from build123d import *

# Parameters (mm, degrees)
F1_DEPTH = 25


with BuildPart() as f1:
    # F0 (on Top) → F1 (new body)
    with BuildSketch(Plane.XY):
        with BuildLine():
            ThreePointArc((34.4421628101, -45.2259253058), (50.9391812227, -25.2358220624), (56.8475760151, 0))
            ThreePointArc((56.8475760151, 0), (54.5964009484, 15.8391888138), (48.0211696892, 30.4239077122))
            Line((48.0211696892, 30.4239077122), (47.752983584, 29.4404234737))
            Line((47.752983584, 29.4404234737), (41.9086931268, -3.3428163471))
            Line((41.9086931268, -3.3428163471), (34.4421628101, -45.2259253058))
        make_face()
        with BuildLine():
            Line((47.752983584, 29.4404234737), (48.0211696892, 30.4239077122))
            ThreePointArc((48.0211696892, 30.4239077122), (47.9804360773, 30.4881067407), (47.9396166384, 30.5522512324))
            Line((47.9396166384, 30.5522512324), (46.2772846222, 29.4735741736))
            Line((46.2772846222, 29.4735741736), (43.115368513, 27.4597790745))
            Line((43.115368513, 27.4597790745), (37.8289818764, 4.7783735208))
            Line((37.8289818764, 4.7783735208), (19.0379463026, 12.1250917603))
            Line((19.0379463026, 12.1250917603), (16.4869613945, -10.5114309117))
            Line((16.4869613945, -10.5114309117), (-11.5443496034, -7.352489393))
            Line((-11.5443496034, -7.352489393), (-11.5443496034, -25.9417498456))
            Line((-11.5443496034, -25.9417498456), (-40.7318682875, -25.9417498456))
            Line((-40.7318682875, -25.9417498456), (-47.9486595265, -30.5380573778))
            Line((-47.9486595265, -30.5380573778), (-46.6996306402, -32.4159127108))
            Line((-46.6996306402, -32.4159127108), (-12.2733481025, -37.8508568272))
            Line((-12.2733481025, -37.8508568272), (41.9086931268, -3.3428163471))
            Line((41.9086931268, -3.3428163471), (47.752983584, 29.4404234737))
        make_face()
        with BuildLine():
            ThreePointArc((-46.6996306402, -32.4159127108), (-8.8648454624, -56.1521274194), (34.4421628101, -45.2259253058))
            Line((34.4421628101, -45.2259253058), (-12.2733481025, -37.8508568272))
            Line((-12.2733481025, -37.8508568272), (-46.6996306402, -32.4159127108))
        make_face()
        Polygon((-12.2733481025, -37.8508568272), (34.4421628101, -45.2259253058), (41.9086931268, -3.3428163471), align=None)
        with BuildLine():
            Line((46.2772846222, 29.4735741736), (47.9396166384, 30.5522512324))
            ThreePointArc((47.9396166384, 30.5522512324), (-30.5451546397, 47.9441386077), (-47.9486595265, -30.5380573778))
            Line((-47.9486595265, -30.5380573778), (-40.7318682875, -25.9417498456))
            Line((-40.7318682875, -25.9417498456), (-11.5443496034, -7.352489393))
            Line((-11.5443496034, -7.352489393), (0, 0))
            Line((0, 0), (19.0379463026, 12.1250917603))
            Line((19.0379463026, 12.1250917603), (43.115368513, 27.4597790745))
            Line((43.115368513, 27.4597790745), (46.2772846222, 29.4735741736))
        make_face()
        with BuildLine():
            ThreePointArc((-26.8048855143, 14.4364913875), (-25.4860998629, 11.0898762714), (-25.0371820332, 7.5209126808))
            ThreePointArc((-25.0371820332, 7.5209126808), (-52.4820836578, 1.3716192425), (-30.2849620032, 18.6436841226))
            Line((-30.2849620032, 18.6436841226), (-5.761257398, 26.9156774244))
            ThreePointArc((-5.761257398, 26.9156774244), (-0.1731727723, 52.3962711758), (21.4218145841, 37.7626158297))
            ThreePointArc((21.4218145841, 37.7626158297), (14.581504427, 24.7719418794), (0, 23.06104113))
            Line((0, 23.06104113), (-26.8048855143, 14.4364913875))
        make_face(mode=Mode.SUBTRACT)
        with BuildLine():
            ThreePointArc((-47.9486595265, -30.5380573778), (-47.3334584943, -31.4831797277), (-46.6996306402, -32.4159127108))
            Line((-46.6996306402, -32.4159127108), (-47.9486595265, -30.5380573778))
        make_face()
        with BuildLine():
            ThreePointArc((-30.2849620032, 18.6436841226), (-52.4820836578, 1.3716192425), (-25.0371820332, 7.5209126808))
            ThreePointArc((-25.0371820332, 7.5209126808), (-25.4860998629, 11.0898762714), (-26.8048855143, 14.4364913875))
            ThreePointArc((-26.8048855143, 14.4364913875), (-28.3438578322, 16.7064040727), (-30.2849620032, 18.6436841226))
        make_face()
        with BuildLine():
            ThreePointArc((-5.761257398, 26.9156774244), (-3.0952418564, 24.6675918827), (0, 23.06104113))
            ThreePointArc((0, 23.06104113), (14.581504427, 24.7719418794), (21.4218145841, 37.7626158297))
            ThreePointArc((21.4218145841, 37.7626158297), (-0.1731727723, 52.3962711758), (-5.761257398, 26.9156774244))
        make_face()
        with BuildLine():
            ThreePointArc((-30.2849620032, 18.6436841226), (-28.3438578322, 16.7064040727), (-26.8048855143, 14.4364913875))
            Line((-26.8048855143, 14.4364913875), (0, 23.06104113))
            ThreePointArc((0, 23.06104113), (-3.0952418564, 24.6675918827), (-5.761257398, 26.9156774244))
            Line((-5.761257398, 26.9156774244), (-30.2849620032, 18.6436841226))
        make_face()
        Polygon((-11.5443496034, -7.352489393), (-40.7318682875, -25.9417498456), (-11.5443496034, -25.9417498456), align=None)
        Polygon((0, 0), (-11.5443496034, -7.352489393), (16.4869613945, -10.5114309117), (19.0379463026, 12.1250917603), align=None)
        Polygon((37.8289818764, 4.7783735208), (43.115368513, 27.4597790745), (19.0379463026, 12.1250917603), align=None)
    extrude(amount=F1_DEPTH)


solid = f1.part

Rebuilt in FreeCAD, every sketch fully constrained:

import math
import FreeCAD as App
import Part
import Sketcher

doc = App.newDocument("Part")
body = doc.addObject("PartDesign::Body", "Body")

# Sketch on XY plane
sketch1 = body.newObject("Sketcher::SketchObject", "Sketch")
sketch1.AttachmentSupport = (doc.getObject("XY_Plane"), [""])
sketch1.MapMode = "FlatFace"
sketch1.addGeometry([
    Part.ArcOfCircle(Part.Circle(App.Vector(0, 0, 0), App.Vector(0, 0, 1), 56.847576), math.radians(-145.234078), math.radians(32.356384)),
    Part.ArcOfCircle(Part.Circle(App.Vector(-0.000014, -0.000009, 0), App.Vector(0, 0, 1), 56.847593), math.radians(32.356384), math.radians(32.509646)),
    Part.ArcOfCircle(Part.Circle(App.Vector(0, 0, 0), App.Vector(0, 0, 1), 56.847576), math.radians(32.509646), math.radians(212.492683)),
    Part.ArcOfCircle(Part.Circle(App.Vector(0, 0, 0), App.Vector(0, 0, 1), 56.847576), math.radians(-147.507317), math.radians(-145.234078)),
], False)
sketch1.addConstraint([
    Sketcher.Constraint("Coincident", 0, 2, 1, 1),
    Sketcher.Constraint("Coincident", 1, 2, 2, 1),
    Sketcher.Constraint("Coincident", 2, 2, 3, 1),
    Sketcher.Constraint("Coincident", 3, 2, 0, 1),
    Sketcher.Constraint("Coincident", 0, 3, -1, 1),
    Sketcher.Constraint("Coincident", 2, 3, -1, 1),
    Sketcher.Constraint("Coincident", 3, 3, -1, 1),
    Sketcher.Constraint("Radius", 0, 56.847576),
    Sketcher.Constraint("Radius", 1, 56.847593),
    Sketcher.Constraint("DistanceX", -1, 1, 0, 2, 48.02117),
    Sketcher.Constraint("DistanceY", -1, 1, 1, 2, 30.552251),
    Sketcher.Constraint("DistanceX", 2, 2, -1, 1, 47.94866),
    Sketcher.Constraint("DistanceX", 3, 2, -1, 1, 46.699631),
])
pad1 = body.newObject("PartDesign::Pad", "Pad")
pad1.Profile = sketch1
pad1.Length = 25

doc.recompute()
